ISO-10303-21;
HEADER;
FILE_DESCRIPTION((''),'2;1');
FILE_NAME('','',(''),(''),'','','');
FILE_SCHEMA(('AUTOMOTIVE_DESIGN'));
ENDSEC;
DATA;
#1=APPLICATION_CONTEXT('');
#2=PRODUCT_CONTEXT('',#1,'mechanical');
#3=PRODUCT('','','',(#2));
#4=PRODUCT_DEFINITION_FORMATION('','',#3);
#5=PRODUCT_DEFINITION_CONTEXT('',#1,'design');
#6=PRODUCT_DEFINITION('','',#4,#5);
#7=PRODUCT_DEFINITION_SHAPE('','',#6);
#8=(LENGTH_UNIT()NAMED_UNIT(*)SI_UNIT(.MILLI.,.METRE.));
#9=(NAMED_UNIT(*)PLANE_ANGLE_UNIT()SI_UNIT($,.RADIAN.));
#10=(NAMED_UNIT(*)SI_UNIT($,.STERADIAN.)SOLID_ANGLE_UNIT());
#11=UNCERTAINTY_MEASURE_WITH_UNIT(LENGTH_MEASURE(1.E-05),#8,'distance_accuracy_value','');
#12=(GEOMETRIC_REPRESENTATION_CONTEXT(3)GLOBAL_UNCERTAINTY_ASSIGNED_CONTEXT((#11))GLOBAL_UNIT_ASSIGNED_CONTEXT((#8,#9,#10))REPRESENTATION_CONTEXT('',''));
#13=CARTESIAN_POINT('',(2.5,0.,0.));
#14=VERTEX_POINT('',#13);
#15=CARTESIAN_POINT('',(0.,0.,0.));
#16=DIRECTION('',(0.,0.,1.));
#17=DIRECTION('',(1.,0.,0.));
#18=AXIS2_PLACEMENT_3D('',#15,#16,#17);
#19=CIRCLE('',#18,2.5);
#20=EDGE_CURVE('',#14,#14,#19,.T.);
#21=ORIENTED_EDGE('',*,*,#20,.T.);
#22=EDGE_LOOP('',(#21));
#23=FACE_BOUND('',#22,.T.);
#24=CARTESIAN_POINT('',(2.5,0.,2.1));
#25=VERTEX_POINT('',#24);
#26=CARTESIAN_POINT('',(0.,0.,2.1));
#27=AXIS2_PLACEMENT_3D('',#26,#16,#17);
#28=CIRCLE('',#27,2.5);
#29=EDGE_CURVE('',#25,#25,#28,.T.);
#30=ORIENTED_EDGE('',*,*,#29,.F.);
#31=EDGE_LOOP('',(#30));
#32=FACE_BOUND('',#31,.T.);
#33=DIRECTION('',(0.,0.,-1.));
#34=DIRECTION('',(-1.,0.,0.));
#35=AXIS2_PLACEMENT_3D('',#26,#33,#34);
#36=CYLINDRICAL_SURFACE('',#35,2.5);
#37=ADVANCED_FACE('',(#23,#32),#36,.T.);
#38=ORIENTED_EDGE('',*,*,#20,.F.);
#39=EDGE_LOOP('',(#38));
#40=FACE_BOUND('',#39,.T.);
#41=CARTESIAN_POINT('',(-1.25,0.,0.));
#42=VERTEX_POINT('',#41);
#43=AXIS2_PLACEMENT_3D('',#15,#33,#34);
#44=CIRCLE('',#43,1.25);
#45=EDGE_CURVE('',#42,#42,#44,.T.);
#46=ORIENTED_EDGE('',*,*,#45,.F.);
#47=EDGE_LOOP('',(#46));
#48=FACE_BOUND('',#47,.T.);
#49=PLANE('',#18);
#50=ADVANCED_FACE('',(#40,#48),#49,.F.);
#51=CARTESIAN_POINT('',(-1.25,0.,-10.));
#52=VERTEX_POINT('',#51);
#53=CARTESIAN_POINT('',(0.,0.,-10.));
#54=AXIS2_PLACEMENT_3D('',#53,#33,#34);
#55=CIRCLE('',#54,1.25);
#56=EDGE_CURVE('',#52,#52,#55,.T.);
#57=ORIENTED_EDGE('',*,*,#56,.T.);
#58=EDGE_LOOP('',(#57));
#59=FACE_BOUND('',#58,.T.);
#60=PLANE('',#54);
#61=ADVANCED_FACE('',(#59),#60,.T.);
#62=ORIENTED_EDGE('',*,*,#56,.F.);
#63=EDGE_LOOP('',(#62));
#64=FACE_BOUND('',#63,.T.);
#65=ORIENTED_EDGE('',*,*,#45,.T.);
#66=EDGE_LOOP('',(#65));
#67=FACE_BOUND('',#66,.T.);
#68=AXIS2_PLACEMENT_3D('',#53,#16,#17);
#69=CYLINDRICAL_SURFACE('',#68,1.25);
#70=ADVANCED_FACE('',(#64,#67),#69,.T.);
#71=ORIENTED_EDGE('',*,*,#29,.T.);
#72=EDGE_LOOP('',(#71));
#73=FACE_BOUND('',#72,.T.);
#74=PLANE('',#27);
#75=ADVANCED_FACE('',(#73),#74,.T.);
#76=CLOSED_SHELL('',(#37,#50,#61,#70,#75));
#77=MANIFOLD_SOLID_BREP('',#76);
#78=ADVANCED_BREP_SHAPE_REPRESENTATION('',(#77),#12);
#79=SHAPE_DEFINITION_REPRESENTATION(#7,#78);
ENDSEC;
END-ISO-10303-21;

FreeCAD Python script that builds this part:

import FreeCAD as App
import Part
import Sketcher
from FreeCAD import Vector

doc = App.newDocument("Part")
body = doc.addObject("PartDesign::Body", "Body")

# Sketch on XY plane
sketch1 = body.newObject("Sketcher::SketchObject", "Sketch")
sketch1.AttachmentSupport = (doc.getObject("XY_Plane"), [""])
sketch1.MapMode = "FlatFace"
sketch1.addGeometry(Part.Circle(Vector(0, 0, 0), Vector(0, 0, 1), 2.5), False)
sketch1.addConstraint([
    Sketcher.Constraint("Coincident", 0, 3, -1, 1),
    Sketcher.Constraint("Diameter", 0, 5.0),
])
pad1 = body.newObject("PartDesign::Pad", "Pad")
pad1.Profile = sketch1
pad1.Length = 2.1

# Sketch on XY plane
sketch2 = body.newObject("Sketcher::SketchObject", "Sketch001")
sketch2.AttachmentSupport = (doc.getObject("XY_Plane"), [""])
sketch2.MapMode = "FlatFace"
sketch2.addGeometry(Part.Circle(Vector(0, 0, 0), Vector(0, 0, 1), 1.2), False)
sketch2.addConstraint([
    Sketcher.Constraint("Coincident", 0, 3, -1, 1),
    Sketcher.Constraint("Diameter", 0, 2.5),
])
pad2 = body.newObject("PartDesign::Pad", "Pad001")
pad2.Profile = sketch2
pad2.Length = 10
pad2.Reversed = True

doc.recompute()
